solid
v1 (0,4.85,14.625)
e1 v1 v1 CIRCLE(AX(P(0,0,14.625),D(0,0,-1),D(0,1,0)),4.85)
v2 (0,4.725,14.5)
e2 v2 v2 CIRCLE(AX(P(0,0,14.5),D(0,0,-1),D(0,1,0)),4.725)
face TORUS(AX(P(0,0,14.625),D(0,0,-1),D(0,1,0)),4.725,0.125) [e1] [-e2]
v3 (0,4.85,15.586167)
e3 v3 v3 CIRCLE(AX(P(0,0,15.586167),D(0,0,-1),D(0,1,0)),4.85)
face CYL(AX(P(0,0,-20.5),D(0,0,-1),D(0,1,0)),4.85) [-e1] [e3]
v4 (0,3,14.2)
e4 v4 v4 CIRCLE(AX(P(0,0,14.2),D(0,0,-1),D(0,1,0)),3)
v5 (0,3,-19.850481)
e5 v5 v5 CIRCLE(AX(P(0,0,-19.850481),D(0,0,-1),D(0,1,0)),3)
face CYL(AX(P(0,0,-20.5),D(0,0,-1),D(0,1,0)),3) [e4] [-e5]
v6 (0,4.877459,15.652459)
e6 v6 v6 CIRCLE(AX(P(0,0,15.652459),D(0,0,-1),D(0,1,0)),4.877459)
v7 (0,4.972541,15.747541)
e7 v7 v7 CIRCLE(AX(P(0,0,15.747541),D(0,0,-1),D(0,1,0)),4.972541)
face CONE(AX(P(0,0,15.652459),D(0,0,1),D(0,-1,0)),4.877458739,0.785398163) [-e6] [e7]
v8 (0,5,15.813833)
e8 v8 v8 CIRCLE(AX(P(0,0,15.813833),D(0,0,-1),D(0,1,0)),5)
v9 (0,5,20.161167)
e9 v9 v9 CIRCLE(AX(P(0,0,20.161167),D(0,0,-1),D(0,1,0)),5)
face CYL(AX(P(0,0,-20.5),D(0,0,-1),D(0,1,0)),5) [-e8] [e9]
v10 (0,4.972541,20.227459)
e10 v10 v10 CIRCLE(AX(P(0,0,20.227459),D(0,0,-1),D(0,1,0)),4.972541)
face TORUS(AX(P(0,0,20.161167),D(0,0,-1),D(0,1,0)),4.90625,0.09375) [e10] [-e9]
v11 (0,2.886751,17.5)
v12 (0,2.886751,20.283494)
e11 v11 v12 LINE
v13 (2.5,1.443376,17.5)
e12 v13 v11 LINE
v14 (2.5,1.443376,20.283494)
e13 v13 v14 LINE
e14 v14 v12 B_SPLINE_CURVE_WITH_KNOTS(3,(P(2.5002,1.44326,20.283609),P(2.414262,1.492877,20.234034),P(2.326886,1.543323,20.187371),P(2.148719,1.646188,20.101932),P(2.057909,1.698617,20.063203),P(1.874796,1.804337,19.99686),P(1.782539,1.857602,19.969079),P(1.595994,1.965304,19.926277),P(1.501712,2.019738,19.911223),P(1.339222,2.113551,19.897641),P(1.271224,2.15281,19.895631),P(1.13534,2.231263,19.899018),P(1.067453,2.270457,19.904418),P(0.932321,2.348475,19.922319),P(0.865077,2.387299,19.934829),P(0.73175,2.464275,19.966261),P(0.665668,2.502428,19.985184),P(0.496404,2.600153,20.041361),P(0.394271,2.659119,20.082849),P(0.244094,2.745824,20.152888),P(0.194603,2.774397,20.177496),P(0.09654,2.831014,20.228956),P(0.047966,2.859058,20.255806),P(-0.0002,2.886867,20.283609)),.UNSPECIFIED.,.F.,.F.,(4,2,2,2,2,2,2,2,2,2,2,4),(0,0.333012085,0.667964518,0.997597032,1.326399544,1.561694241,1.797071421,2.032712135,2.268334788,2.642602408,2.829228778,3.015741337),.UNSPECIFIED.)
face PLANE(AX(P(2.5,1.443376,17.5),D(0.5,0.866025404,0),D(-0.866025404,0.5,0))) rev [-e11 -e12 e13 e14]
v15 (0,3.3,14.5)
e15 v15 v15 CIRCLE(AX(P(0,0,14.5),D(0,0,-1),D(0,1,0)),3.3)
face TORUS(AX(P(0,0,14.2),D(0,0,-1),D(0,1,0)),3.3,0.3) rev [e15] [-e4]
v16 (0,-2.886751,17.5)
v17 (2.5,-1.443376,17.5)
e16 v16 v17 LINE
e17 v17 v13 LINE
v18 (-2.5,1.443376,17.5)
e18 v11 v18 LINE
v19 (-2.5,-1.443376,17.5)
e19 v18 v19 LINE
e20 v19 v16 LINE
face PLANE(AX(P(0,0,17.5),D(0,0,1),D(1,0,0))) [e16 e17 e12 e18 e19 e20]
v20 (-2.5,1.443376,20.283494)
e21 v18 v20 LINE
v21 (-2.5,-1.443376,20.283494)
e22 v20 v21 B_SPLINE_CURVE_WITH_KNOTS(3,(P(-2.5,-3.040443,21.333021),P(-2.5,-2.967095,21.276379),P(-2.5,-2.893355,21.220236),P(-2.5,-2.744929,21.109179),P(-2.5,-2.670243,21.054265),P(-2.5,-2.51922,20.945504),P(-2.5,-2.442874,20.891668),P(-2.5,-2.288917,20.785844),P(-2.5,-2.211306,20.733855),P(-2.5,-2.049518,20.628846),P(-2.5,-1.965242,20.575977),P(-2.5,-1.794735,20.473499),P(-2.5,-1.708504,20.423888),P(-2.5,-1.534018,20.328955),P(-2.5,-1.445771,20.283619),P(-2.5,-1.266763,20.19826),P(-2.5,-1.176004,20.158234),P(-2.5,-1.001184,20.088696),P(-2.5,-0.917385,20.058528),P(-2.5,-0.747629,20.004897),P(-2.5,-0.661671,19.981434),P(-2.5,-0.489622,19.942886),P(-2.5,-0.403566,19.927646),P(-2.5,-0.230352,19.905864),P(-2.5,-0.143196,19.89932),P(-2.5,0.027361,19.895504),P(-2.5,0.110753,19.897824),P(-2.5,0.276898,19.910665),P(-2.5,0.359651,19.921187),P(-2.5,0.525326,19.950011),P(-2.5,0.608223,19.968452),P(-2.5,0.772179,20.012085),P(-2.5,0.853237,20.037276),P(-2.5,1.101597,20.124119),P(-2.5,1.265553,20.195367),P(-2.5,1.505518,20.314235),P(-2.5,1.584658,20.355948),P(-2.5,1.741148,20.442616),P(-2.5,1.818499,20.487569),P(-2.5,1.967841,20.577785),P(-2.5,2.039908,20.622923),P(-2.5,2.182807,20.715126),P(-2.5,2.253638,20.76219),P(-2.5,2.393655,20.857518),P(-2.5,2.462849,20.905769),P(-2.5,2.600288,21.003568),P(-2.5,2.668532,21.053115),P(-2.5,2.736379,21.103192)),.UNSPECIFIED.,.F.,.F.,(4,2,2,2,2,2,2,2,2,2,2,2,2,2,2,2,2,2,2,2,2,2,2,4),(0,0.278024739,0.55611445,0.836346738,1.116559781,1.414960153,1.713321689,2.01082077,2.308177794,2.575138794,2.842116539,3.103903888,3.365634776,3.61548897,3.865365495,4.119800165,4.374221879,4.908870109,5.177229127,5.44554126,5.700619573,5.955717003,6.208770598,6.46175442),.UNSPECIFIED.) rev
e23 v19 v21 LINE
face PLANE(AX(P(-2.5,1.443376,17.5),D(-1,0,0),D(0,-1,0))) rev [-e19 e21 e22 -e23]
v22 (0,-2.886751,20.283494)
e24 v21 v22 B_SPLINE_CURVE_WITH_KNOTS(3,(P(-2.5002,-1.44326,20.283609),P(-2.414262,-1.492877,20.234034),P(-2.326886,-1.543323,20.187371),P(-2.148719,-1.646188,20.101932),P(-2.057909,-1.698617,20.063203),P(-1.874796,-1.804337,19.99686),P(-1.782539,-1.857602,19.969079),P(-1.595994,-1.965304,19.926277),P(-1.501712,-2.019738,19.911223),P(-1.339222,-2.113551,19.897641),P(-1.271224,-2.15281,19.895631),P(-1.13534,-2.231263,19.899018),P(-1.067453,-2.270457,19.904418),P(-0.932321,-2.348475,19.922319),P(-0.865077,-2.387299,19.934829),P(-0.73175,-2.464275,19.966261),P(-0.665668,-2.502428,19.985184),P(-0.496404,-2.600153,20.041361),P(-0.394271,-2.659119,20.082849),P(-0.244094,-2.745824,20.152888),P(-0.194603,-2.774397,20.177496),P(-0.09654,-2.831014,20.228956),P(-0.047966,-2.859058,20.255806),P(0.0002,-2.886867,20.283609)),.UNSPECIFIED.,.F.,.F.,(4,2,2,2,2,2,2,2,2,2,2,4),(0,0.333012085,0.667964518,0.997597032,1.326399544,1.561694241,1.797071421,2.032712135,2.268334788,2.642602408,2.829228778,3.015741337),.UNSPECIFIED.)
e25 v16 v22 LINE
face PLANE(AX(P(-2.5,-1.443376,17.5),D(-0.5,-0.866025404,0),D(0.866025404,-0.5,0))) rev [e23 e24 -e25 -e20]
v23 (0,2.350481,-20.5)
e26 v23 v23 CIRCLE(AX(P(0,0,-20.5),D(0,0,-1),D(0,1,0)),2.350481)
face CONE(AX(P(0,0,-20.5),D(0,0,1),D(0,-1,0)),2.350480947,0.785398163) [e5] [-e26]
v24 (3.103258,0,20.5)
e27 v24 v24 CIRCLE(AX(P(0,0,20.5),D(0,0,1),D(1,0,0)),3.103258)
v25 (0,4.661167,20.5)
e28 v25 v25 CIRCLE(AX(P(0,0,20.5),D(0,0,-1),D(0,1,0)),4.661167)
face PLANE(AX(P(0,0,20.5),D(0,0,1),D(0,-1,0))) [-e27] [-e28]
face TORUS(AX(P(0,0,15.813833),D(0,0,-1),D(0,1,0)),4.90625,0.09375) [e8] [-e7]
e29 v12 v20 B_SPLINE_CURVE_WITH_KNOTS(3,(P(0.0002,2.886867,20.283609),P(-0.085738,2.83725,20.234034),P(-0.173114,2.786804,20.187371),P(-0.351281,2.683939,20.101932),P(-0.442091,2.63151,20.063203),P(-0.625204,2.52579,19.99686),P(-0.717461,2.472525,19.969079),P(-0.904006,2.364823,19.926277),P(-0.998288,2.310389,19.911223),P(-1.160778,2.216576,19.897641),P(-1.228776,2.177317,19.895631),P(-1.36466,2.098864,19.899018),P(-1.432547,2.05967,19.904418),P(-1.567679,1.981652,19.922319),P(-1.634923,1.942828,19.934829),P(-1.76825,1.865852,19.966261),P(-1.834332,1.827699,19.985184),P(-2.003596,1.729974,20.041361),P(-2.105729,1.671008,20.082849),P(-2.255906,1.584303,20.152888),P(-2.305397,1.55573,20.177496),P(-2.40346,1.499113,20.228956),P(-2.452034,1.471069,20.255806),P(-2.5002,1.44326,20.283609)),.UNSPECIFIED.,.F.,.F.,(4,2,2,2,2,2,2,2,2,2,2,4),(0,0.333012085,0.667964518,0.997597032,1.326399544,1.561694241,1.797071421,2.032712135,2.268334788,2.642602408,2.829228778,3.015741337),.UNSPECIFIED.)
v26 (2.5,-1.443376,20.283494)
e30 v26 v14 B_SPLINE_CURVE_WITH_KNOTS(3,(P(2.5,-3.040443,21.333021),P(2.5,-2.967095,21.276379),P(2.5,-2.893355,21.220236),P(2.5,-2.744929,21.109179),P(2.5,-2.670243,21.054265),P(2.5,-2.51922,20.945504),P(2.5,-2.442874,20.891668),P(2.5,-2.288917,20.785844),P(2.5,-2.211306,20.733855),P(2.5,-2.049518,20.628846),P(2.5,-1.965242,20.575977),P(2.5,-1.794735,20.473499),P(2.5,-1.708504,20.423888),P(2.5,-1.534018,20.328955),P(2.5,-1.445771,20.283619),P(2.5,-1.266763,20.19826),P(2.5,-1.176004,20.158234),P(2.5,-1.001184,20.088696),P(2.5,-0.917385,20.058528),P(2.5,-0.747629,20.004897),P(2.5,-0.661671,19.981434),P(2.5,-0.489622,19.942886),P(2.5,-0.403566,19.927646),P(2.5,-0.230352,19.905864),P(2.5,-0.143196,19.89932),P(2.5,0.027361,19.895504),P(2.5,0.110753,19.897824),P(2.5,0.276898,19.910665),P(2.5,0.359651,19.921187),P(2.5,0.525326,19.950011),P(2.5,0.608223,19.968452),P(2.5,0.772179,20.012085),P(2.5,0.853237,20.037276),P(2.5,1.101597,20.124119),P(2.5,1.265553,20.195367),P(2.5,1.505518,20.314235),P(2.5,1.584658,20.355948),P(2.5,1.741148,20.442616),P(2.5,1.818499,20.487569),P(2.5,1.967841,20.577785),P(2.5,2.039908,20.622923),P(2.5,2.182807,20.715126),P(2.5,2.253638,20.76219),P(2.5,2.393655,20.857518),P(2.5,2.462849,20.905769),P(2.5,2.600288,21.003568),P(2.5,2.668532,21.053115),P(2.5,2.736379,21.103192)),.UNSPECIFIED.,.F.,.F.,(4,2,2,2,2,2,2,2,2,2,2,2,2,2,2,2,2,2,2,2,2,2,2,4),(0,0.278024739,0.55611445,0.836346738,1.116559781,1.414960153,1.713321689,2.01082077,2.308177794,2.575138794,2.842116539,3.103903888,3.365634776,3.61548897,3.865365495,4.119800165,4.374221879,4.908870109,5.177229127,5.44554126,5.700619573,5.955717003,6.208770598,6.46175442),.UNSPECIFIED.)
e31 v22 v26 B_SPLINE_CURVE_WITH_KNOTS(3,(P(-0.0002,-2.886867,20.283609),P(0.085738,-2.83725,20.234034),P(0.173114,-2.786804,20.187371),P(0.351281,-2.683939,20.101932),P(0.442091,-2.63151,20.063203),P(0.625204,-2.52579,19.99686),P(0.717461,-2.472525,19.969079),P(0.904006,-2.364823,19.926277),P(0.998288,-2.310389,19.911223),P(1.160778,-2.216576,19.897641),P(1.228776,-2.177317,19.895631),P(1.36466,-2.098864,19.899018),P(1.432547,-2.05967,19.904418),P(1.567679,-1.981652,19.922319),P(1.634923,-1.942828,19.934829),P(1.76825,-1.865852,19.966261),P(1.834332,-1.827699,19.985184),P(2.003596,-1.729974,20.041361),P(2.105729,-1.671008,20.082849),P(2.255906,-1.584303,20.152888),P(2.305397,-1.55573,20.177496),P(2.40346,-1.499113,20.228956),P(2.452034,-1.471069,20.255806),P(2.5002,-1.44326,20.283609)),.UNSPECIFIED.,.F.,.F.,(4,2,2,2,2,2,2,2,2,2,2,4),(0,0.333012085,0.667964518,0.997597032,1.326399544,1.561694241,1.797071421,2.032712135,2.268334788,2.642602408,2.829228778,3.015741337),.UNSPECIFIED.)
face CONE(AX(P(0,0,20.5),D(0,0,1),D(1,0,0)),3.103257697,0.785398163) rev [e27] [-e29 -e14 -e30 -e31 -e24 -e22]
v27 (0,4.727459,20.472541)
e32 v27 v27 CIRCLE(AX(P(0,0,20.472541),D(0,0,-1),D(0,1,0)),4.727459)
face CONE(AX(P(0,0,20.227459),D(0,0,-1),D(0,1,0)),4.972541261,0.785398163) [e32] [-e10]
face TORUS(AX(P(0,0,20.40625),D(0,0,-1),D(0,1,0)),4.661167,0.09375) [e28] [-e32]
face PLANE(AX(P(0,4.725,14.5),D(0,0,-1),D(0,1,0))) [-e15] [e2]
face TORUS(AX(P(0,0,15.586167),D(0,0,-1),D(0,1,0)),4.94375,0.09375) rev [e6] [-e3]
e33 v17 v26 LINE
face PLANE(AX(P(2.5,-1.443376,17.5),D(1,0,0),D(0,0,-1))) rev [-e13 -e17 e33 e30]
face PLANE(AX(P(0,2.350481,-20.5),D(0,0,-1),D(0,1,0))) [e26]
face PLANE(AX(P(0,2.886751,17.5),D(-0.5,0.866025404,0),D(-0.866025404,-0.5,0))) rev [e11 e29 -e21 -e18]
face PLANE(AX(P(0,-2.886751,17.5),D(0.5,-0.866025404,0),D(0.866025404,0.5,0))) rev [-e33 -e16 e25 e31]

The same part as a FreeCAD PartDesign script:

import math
import FreeCAD as App
import Part
import Sketcher
Q = App.Units.Quantity


def add_polygon(sketch, points):
    """Adds a closed chain of lines whose ends are joined by coincident constraints."""
    first, n = sketch.GeometryCount, len(points)
    for a, b in zip(points, points[1:] + points[:1]):
        sketch.addGeometry(Part.LineSegment(App.Vector(*a, 0), App.Vector(*b, 0)), False)
    for i in range(n):
        sketch.addConstraint(Sketcher.Constraint("Coincident", first + i, 2, first + (i + 1) % n, 1))

doc = App.newDocument("Part")
body = doc.addObject("PartDesign::Body", "Body")

sketch1 = body.newObject("Sketcher::SketchObject", "Sketch")
sketch1.AttachmentSupport = (doc.getObject("YZ_Plane"), [""])
sketch1.MapMode = "FlatFace"
sketch1.addGeometry(Part.LineSegment(App.Vector(4.66, 20.5, 0), App.Vector(0, 20.5, 0)), False)
sketch1.addGeometry(Part.LineSegment(App.Vector(0, 20.5, 0), App.Vector(0, -20.5, 0)), False)
sketch1.addGeometry(Part.LineSegment(App.Vector(0, -20.5, 0), App.Vector(2.35, -20.5, 0)), False)
sketch1.addGeometry(Part.LineSegment(App.Vector(2.35, -20.5, 0), App.Vector(3, -19.85, 0)), False)
sketch1.addGeometry(Part.LineSegment(App.Vector(3, -19.85, 0), App.Vector(3, 14.2, 0)), False)
sketch1.addGeometry(Part.ArcOfCircle(Part.Circle(App.Vector(3.3, 14.2, 0), App.Vector(0, 0, 1), 0.3), math.radians(90), math.radians(180)), False)
sketch1.addGeometry(Part.LineSegment(App.Vector(3.3, 14.5, 0), App.Vector(4.72, 14.5, 0)), False)
sketch1.addGeometry(Part.ArcOfCircle(Part.Circle(App.Vector(4.73, 14.62, 0), App.Vector(0, 0, 1), 0.12), math.radians(-90), math.radians(0)), False)
sketch1.addGeometry(Part.LineSegment(App.Vector(4.85, 14.62, 0), App.Vector(4.85, 15.59, 0)), False)
sketch1.addGeometry(Part.ArcOfCircle(Part.Circle(App.Vector(4.94, 15.59, 0), App.Vector(0, 0, 1), 0.09), math.radians(135), math.radians(180)), False)
sketch1.addGeometry(Part.LineSegment(App.Vector(4.88, 15.65, 0), App.Vector(4.97, 15.75, 0)), False)
sketch1.addGeometry(Part.ArcOfCircle(Part.Circle(App.Vector(4.91, 15.81, 0), App.Vector(0, 0, 1), 0.09), math.radians(-45), math.radians(0)), False)
sketch1.addGeometry(Part.LineSegment(App.Vector(5, 15.81, 0), App.Vector(5, 20.16, 0)), False)
sketch1.addGeometry(Part.ArcOfCircle(Part.Circle(App.Vector(4.91, 20.16, 0), App.Vector(0, 0, 1), 0.09), math.radians(0), math.radians(45)), False)
sketch1.addGeometry(Part.LineSegment(App.Vector(4.97, 20.23, 0), App.Vector(4.73, 20.47, 0)), False)
sketch1.addGeometry(Part.ArcOfCircle(Part.Circle(App.Vector(4.66, 20.41, 0), App.Vector(0, 0, 1), 0.09), math.radians(45), math.radians(90)), False)
sketch1.addConstraint(Sketcher.Constraint("Coincident", 0, 2, 1, 1))
sketch1.addConstraint(Sketcher.Constraint("Coincident", 1, 2, 2, 1))
sketch1.addConstraint(Sketcher.Constraint("Coincident", 2, 2, 3, 1))
sketch1.addConstraint(Sketcher.Constraint("Coincident", 3, 2, 4, 1))
sketch1.addConstraint(Sketcher.Constraint("Tangent", 4, 2, 5, 2))
sketch1.addConstraint(Sketcher.Constraint("Tangent", 5, 1, 6, 1))
sketch1.addConstraint(Sketcher.Constraint("Tangent", 6, 2, 7, 1))
sketch1.addConstraint(Sketcher.Constraint("Tangent", 7, 2, 8, 1))
sketch1.addConstraint(Sketcher.Constraint("Tangent", 8, 2, 9, 2))
sketch1.addConstraint(Sketcher.Constraint("Tangent", 9, 1, 10, 1))
sketch1.addConstraint(Sketcher.Constraint("Tangent", 10, 2, 11, 1))
sketch1.addConstraint(Sketcher.Constraint("Tangent", 11, 2, 12, 1))
sketch1.addConstraint(Sketcher.Constraint("Tangent", 12, 2, 13, 1))
sketch1.addConstraint(Sketcher.Constraint("Tangent", 13, 2, 14, 1))
sketch1.addConstraint(Sketcher.Constraint("Tangent", 14, 2, 15, 1))
sketch1.addConstraint(Sketcher.Constraint("Tangent", 15, 2, 0, 1))
sketch1.addConstraint(Sketcher.Constraint("Horizontal", 0))
sketch1.addConstraint(Sketcher.Constraint("Vertical", 1))
sketch1.addConstraint(Sketcher.Constraint("Horizontal", 2))
sketch1.addConstraint(Sketcher.Constraint("Vertical", 4))
sketch1.addConstraint(Sketcher.Constraint("Horizontal", 6))
sketch1.addConstraint(Sketcher.Constraint("Vertical", 8))
sketch1.addConstraint(Sketcher.Constraint("Vertical", 12))
sketch1.addConstraint(Sketcher.Constraint("Equal", 9, 11))
sketch1.addConstraint(Sketcher.Constraint("Equal", 11, 13))
sketch1.addConstraint(Sketcher.Constraint("Equal", 13, 15))
sketch1.addConstraint(Sketcher.Constraint("Symmetric", 0, 2, 1, 2, -1, 1))
sketch1.addConstraint(Sketcher.Constraint("Parallel", 3, 10))
sketch1.addConstraint(Sketcher.Constraint("Perpendicular", 10, 14))
sketch1.addConstraint(Sketcher.Constraint("Vertical", 10, 2, 13, 2))
sketch1.addConstraint(Sketcher.Constraint("Radius", 5, 0.3))
sketch1.addConstraint(Sketcher.Constraint("DistanceY", 1, 2, 1, 1, 41.0))
sketch1.addConstraint(Sketcher.Constraint("DistanceX", -1, 1, 3, 2, 3.0))
sketch1.addConstraint(Sketcher.Constraint("DistanceX", -1, 1, 11, 2, 5.0))
sketch1.addConstraint(Sketcher.Constraint("Radius", 7, 0.125))
sketch1.addConstraint(Sketcher.Constraint("DistanceY", -1, 1, 5, 3, 14.2))
sketch1.addConstraint(Sketcher.Constraint("DistanceX", 6, 1, 6, 2, 1.425))
sketch1.addConstraint(Sketcher.Constraint("Radius", 9, 0.09375))
sketch1.addConstraint(Sketcher.Constraint("DistanceY", 9, 3, 13, 3, 4.575))
sketch1.addConstraint(Sketcher.Constraint("Distance", 14, 0.346599))
sketch1.addConstraint(Sketcher.Constraint("DistanceX", 2, 1, 2, 2, 2.350481))
revolution = body.newObject("PartDesign::Revolution", "Revolution")
revolution.Profile = sketch1
revolution.ReferenceAxis = (sketch1, ["V_Axis"])
revolution.Angle = 360

sketch2 = body.newObject("Sketcher::SketchObject", "Sketch001")
sketch2.AttachmentSupport = (doc.getObject("XY_Plane"), [""])
sketch2.MapMode = "FlatFace"
sketch2.AttachmentOffset = App.Placement(App.Vector(0, 0, 17.5), App.Rotation())
add_polygon(sketch2, [(2.5, -1.4), (2.5, 1.4), (0, 2.9), (-2.5, 1.4), (-2.5, -1.4), (0, -2.9)])
sketch2.addConstraint(Sketcher.Constraint("Vertical", 0))
sketch2.addConstraint(Sketcher.Constraint("Vertical", 3))
sketch2.addConstraint(Sketcher.Constraint("Symmetric", 0, 2, 3, 2, -1, 1))
sketch2.addConstraint(Sketcher.Constraint("Symmetric", 1, 2, 4, 2, -1, 1))
sketch2.addConstraint(Sketcher.Constraint("PointOnObject", 1, 2, -2))
sketch2.addConstraint(Sketcher.Constraint("Parallel", 2, 5))
sketch2.addConstraint(Sketcher.Constraint("Horizontal", 0, 2, 2, 2))
sketch2.addConstraint(Sketcher.Constraint("Angle", 1, Q("150 deg")))
sketch2.addConstraint(Sketcher.Constraint("DistanceX", 2, 2, 0, 2, 5.0))
sketch2.addConstraint(Sketcher.Constraint("DistanceY", 0, 1, 0, 2, 2.886751))
pocket1 = body.newObject("PartDesign::Pocket", "Pocket")
pocket1.Profile = sketch2
pocket1.Length = 3
pocket1.Reversed = True

sketch3 = body.newObject("Sketcher::SketchObject", "Sketch002")
sketch3.AttachmentSupport = (doc.getObject("XY_Plane"), [""])
sketch3.MapMode = "FlatFace"
sketch3.AttachmentOffset = App.Placement(App.Vector(0, 0, 20.5), App.Rotation())
sketch3.addGeometry(Part.Circle(App.Vector(0, 0, 0), App.Vector(0, 0, 1), 3.1), False)
sketch3.addConstraint(Sketcher.Constraint("Coincident", 0, 3, -1, 1))
sketch3.addConstraint(Sketcher.Constraint("Diameter", 0, 6.206515))
pocket2 = body.newObject("PartDesign::Pocket", "Pocket001")
pocket2.Profile = sketch3
pocket2.Length = 3
pocket2.TaperAngle = -45

doc.recompute()
